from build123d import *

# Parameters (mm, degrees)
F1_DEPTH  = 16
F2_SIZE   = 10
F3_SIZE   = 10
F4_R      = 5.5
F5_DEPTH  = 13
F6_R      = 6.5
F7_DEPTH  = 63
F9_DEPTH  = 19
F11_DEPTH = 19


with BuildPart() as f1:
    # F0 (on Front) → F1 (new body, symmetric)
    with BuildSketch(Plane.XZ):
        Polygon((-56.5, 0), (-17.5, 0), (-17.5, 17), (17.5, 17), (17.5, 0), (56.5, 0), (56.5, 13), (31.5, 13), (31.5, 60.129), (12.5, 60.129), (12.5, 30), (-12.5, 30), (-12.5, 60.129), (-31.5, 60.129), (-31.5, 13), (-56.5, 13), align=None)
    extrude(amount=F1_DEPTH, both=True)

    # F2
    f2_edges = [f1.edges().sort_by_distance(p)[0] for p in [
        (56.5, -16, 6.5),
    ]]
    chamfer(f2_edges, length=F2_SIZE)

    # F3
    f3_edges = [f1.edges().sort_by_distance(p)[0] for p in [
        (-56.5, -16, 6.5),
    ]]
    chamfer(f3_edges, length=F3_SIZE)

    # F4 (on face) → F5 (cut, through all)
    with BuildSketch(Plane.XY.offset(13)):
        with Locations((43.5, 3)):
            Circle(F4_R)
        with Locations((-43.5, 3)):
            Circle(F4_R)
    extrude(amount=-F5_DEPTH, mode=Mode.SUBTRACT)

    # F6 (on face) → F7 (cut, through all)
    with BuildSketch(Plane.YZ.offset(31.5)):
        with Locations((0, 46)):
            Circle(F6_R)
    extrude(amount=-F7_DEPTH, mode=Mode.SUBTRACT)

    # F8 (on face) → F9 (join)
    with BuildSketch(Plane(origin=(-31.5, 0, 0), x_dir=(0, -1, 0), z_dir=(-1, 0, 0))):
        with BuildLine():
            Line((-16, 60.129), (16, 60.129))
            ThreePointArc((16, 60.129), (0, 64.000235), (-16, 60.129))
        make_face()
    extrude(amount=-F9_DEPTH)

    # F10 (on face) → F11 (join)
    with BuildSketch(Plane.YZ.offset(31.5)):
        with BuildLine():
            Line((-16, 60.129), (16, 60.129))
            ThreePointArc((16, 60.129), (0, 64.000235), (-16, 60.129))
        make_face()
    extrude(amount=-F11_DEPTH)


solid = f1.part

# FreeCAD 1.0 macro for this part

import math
import FreeCAD as App
import Part
import Sketcher

V = App.Vector
Q = App.Units.Quantity


def edges_at(feature, points):
    """Names of the edges that pass closest to the given points."""
    edges = feature.Shape.Edges
    near = lambda p: min(range(len(edges)), key=lambda i: edges[i].distToShape(Part.Vertex(*p))[0])
    return sorted({f"Edge{near(p) + 1}" for p in points})

doc = App.newDocument("Part")
body = doc.addObject("PartDesign::Body", "Body")

sketch1 = doc.addObject("Sketcher::SketchObject", "Sketch")
body.addObject(sketch1)
sketch1.AttachmentSupport = (doc.XZ_Plane, [""])
sketch1.MapMode = "FlatFace"
sketch1.addGeometry([
    Part.LineSegment(V(-56, 0, 0), V(-18, 0, 0)),
    Part.LineSegment(V(-18, 0, 0), V(-18, 17, 0)),
    Part.LineSegment(V(-18, 17, 0), V(18, 17, 0)),
    Part.LineSegment(V(18, 17, 0), V(18, 0, 0)),
    Part.LineSegment(V(18, 0, 0), V(56, 0, 0)),
    Part.LineSegment(V(56, 0, 0), V(56, 13, 0)),
    Part.LineSegment(V(56, 13, 0), V(32, 13, 0)),
    Part.LineSegment(V(32, 13, 0), V(32, 60, 0)),
    Part.LineSegment(V(32, 60, 0), V(12, 60, 0)),
    Part.LineSegment(V(12, 60, 0), V(12, 30, 0)),
    Part.LineSegment(V(12, 30, 0), V(-12, 30, 0)),
    Part.LineSegment(V(-12, 30, 0), V(-12, 60, 0)),
    Part.LineSegment(V(-12, 60, 0), V(-32, 60, 0)),
    Part.LineSegment(V(-32, 60, 0), V(-32, 13, 0)),
    Part.LineSegment(V(-32, 13, 0), V(-56, 13, 0)),
    Part.LineSegment(V(-56, 13, 0), V(-56, 0, 0)),
], False)
sketch1.addConstraint([
    Sketcher.Constraint("Coincident", 0, 2, 1, 1),
    Sketcher.Constraint("Coincident", 1, 2, 2, 1),
    Sketcher.Constraint("Coincident", 2, 2, 3, 1),
    Sketcher.Constraint("Coincident", 3, 2, 4, 1),
    Sketcher.Constraint("Coincident", 4, 2, 5, 1),
    Sketcher.Constraint("Coincident", 5, 2, 6, 1),
    Sketcher.Constraint("Coincident", 6, 2, 7, 1),
    Sketcher.Constraint("Coincident", 7, 2, 8, 1),
    Sketcher.Constraint("Coincident", 8, 2, 9, 1),
    Sketcher.Constraint("Coincident", 9, 2, 10, 1),
    Sketcher.Constraint("Coincident", 10, 2, 11, 1),
    Sketcher.Constraint("Coincident", 11, 2, 12, 1),
    Sketcher.Constraint("Coincident", 12, 2, 13, 1),
    Sketcher.Constraint("Coincident", 13, 2, 14, 1),
    Sketcher.Constraint("Coincident", 14, 2, 15, 1),
    Sketcher.Constraint("Coincident", 15, 2, 0, 1),
    Sketcher.Constraint("Horizontal", 0),
    Sketcher.Constraint("Vertical", 1),
    Sketcher.Constraint("Horizontal", 2),
    Sketcher.Constraint("Vertical", 3),
    Sketcher.Constraint("Horizontal", 4),
    Sketcher.Constraint("Vertical", 5),
    Sketcher.Constraint("Horizontal", 6),
    Sketcher.Constraint("Vertical", 7),
    Sketcher.Constraint("Horizontal", 8),
    Sketcher.Constraint("Vertical", 9),
    Sketcher.Constraint("Horizontal", 10),
    Sketcher.Constraint("Vertical", 11),
    Sketcher.Constraint("Horizontal", 12),
    Sketcher.Constraint("Vertical", 13),
    Sketcher.Constraint("Horizontal", 14),
    Sketcher.Constraint("Vertical", 15),
    Sketcher.Constraint("Symmetric", 0, 2, 3, 2, -1, 1),
    Sketcher.Constraint("Symmetric", 8, 2, 11, 2, -2),
    Sketcher.Constraint("Symmetric", 6, 2, 13, 2, -2),
    Sketcher.Constraint("Symmetric", 4, 2, 15, 2, -2),
    Sketcher.Constraint("Equal", 6, 10),
    Sketcher.Constraint("DistanceX", 0, 1, 0, 2, Q("39 mm")),
    Sketcher.Constraint("DistanceX", 2, 1, 2, 2, Q("35 mm")),
    Sketcher.Constraint("DistanceX", 6, 2, 6, 1, Q("25 mm")),
    Sketcher.Constraint("DistanceY", 1, 1, 1, 2, Q("17 mm")),
    Sketcher.Constraint("DistanceY", 5, 1, 5, 2, Q("13 mm")),
    Sketcher.Constraint("DistanceY", -1, 1, 9, 2, Q("30 mm")),
    Sketcher.Constraint("DistanceY", 7, 1, 7, 2, Q("47.129 mm")),
])
pad1 = doc.addObject("PartDesign::Pad", "Pad")
body.addObject(pad1)
pad1.Profile = sketch1
pad1.Length = 32
pad1.Midplane = True
doc.recompute()

chamfer = doc.addObject("PartDesign::Chamfer", "Chamfer")
body.addObject(chamfer)
chamfer.Base = (pad1, edges_at(pad1, [(56.5, -16, 6.5)]))
chamfer.Size = 10
doc.recompute()

chamfer2 = doc.addObject("PartDesign::Chamfer", "Chamfer001")
body.addObject(chamfer2)
chamfer2.Base = (chamfer, edges_at(chamfer, [(-56.5, -16, 6.5)]))
chamfer2.Size = 10

sketch2 = doc.addObject("Sketcher::SketchObject", "Sketch001")
body.addObject(sketch2)
sketch2.AttachmentSupport = (doc.XY_Plane, [""])
sketch2.MapMode = "FlatFace"
sketch2.AttachmentOffset = App.Placement(V(0, 0, 13), App.Rotation())
sketch2.addGeometry([
    Part.Circle(V(44, 3, 0), V(0, 0, 1), 6),
    Part.Circle(V(-44, 3, 0), V(0, 0, 1), 6),
], False)
sketch2.addConstraint([
    Sketcher.Constraint("Equal", 0, 1),
    Sketcher.Constraint("Symmetric", 0, 3, 1, 3, -2),
    Sketcher.Constraint("Diameter", 0, Q("11 mm")),
    Sketcher.Constraint("DistanceY", -1, 1, 0, 3, Q("3 mm")),
    Sketcher.Constraint("DistanceX", 1, 3, 0, 3, Q("87 mm")),
])
pocket1 = doc.addObject("PartDesign::Pocket", "Pocket")
body.addObject(pocket1)
pocket1.Profile = sketch2
pocket1.Type = "ThroughAll"

sketch3 = doc.addObject("Sketcher::SketchObject", "Sketch002")
body.addObject(sketch3)
sketch3.AttachmentSupport = (doc.YZ_Plane, [""])
sketch3.MapMode = "FlatFace"
sketch3.AttachmentOffset = App.Placement(V(0, 0, 31.5), App.Rotation())
sketch3.addGeometry(Part.Circle(V(0, 46, 0), V(0, 0, 1), 6), False)
sketch3.addConstraint([
    Sketcher.Constraint("PointOnObject", 0, 3, -2),
    Sketcher.Constraint("Diameter", 0, Q("13 mm")),
    Sketcher.Constraint("DistanceY", -1, 1, 0, 3, Q("46 mm")),
])
pocket2 = doc.addObject("PartDesign::Pocket", "Pocket001")
body.addObject(pocket2)
pocket2.Profile = sketch3
pocket2.Type = "ThroughAll"

sketch4 = doc.addObject("Sketcher::SketchObject", "Sketch003")
body.addObject(sketch4)
sketch4.AttachmentSupport = (doc.YZ_Plane, [""])
sketch4.MapMode = "FlatFace"
sketch4.AttachmentOffset = App.Placement(V(0, 0, -31.5), App.Rotation())
sketch4.addGeometry([
    Part.LineSegment(V(16, 60, 0), V(-16, 60, 0)),
    Part.ArcOfCircle(Part.Circle(V(0, 29, 0), V(0, 0, 1), 35), math.radians(63), math.radians(117)),
], False)
sketch4.addConstraint([
    Sketcher.Constraint("Coincident", 0, 1, 1, 1),
    Sketcher.Constraint("Coincident", 1, 2, 0, 2),
    Sketcher.Constraint("Horizontal", 0),
    Sketcher.Constraint("PointOnObject", 1, 3, -2),
    Sketcher.Constraint("Radius", 1, Q("35.000001 mm")),
    Sketcher.Constraint("DistanceX", 0, 2, 0, 1, Q("32 mm")),
    Sketcher.Constraint("DistanceY", -1, 1, 0, 1, Q("60.129 mm")),
])
pad2 = doc.addObject("PartDesign::Pad", "Pad001")
body.addObject(pad2)
pad2.Profile = sketch4
pad2.Length = 19

sketch5 = doc.addObject("Sketcher::SketchObject", "Sketch004")
body.addObject(sketch5)
sketch5.AttachmentSupport = (doc.YZ_Plane, [""])
sketch5.MapMode = "FlatFace"
sketch5.AttachmentOffset = App.Placement(V(0, 0, 31.5), App.Rotation())
sketch5.addGeometry([
    Part.LineSegment(V(-16, 60, 0), V(16, 60, 0)),
    Part.ArcOfCircle(Part.Circle(V(0, 29, 0), V(0, 0, 1), 35), math.radians(63), math.radians(117)),
], False)
sketch5.addConstraint([
    Sketcher.Constraint("Coincident", 0, 1, 1, 2),
    Sketcher.Constraint("Coincident", 1, 1, 0, 2),
    Sketcher.Constraint("Horizontal", 0),
    Sketcher.Constraint("PointOnObject", 1, 3, -2),
    Sketcher.Constraint("Radius", 1, Q("35.000001 mm")),
    Sketcher.Constraint("DistanceX", 0, 1, 0, 2, Q("32 mm")),
    Sketcher.Constraint("DistanceY", -1, 1, 0, 1, Q("60.129 mm")),
])
pad3 = doc.addObject("PartDesign::Pad", "Pad002")
body.addObject(pad3)
pad3.Profile = sketch5
pad3.Length = 19
pad3.Reversed = True

doc.recompute()
